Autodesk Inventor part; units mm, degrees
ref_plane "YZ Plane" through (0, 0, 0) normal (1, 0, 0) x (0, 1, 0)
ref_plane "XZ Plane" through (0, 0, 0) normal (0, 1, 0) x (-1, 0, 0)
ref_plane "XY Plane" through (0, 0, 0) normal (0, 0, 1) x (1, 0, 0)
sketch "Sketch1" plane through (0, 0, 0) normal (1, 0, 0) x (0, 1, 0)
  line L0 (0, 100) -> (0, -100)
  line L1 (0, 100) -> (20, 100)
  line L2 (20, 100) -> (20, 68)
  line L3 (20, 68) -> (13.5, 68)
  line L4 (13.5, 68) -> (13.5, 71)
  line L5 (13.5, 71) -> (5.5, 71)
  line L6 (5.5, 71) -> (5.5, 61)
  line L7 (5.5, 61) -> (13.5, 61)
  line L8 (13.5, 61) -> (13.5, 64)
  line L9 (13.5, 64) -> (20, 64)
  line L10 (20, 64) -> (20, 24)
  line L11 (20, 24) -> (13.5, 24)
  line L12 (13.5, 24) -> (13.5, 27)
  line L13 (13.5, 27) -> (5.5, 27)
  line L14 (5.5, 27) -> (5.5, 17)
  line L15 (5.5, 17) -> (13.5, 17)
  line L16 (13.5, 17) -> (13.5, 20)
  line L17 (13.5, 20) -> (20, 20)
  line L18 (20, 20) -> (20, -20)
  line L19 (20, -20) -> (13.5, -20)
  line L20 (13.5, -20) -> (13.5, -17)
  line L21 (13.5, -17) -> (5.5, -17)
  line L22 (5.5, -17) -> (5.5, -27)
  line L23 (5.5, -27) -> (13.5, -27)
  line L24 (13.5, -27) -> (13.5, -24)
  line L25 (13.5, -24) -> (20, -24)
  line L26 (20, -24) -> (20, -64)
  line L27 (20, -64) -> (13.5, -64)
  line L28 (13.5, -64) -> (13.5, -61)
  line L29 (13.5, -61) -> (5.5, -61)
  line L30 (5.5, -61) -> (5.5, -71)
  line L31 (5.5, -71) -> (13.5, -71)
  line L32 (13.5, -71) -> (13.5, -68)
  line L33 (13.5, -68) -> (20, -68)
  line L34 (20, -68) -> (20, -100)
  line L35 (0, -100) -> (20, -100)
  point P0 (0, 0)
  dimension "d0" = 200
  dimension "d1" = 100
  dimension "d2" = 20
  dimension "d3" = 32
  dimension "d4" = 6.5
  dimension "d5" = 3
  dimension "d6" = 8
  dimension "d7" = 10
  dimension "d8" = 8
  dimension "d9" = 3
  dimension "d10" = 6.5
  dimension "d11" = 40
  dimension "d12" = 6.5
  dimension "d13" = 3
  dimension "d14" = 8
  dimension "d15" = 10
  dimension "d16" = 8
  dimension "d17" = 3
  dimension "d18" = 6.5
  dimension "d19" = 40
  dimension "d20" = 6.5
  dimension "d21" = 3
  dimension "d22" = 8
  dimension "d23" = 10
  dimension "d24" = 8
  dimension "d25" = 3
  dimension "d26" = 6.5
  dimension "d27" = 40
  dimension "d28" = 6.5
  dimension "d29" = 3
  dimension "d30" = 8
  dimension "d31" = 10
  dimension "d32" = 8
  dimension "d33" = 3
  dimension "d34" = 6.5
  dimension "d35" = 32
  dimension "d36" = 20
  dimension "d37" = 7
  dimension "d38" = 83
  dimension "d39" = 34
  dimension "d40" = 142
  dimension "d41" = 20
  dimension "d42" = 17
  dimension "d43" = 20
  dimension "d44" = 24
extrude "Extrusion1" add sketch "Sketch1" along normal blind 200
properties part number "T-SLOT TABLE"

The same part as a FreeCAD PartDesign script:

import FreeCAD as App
import Part
import Sketcher

V = App.Vector
Q = App.Units.Quantity

doc = App.newDocument("Part")
body = doc.addObject("PartDesign::Body", "Body")

# Sketch on YZ plane
sketch1 = body.newObject("Sketcher::SketchObject", "Sketch")
sketch1.AttachmentSupport = (doc.getObject("YZ_Plane"), [""])
sketch1.MapMode = "FlatFace"
sketch1.addGeometry(Part.LineSegment(V(20, 100, 0), V(0, 100, 0)), False)
sketch1.addGeometry(Part.LineSegment(V(0, 100, 0), V(0, -100, 0)), False)
sketch1.addGeometry(Part.LineSegment(V(0, -100, 0), V(20, -100, 0)), False)
sketch1.addGeometry(Part.LineSegment(V(20, -100, 0), V(20, -68, 0)), False)
sketch1.addGeometry(Part.LineSegment(V(20, -68, 0), V(13.5, -68, 0)), False)
sketch1.addGeometry(Part.LineSegment(V(13.5, -68, 0), V(13.5, -71, 0)), False)
sketch1.addGeometry(Part.LineSegment(V(13.5, -71, 0), V(5.5, -71, 0)), False)
sketch1.addGeometry(Part.LineSegment(V(5.5, -71, 0), V(5.5, -61, 0)), False)
sketch1.addGeometry(Part.LineSegment(V(5.5, -61, 0), V(13.5, -61, 0)), False)
sketch1.addGeometry(Part.LineSegment(V(13.5, -61, 0), V(13.5, -64, 0)), False)
sketch1.addGeometry(Part.LineSegment(V(13.5, -64, 0), V(20, -64, 0)), False)
sketch1.addGeometry(Part.LineSegment(V(20, -64, 0), V(20, -24, 0)), False)
sketch1.addGeometry(Part.LineSegment(V(20, -24, 0), V(13.5, -24, 0)), False)
sketch1.addGeometry(Part.LineSegment(V(13.5, -24, 0), V(13.5, -27, 0)), False)
sketch1.addGeometry(Part.LineSegment(V(13.5, -27, 0), V(5.5, -27, 0)), False)
sketch1.addGeometry(Part.LineSegment(V(5.5, -27, 0), V(5.5, -17, 0)), False)
sketch1.addGeometry(Part.LineSegment(V(5.5, -17, 0), V(13.5, -17, 0)), False)
sketch1.addGeometry(Part.LineSegment(V(13.5, -17, 0), V(13.5, -20, 0)), False)
sketch1.addGeometry(Part.LineSegment(V(13.5, -20, 0), V(20, -20, 0)), False)
sketch1.addGeometry(Part.LineSegment(V(20, -20, 0), V(20, 20, 0)), False)
sketch1.addGeometry(Part.LineSegment(V(20, 20, 0), V(13.5, 20, 0)), False)
sketch1.addGeometry(Part.LineSegment(V(13.5, 20, 0), V(13.5, 17, 0)), False)
sketch1.addGeometry(Part.LineSegment(V(13.5, 17, 0), V(5.5, 17, 0)), False)
sketch1.addGeometry(Part.LineSegment(V(5.5, 17, 0), V(5.5, 27, 0)), False)
sketch1.addGeometry(Part.LineSegment(V(5.5, 27, 0), V(13.5, 27, 0)), False)
sketch1.addGeometry(Part.LineSegment(V(13.5, 27, 0), V(13.5, 24, 0)), False)
sketch1.addGeometry(Part.LineSegment(V(13.5, 24, 0), V(20, 24, 0)), False)
sketch1.addGeometry(Part.LineSegment(V(20, 24, 0), V(20, 64, 0)), False)
sketch1.addGeometry(Part.LineSegment(V(20, 64, 0), V(13.5, 64, 0)), False)
sketch1.addGeometry(Part.LineSegment(V(13.5, 64, 0), V(13.5, 61, 0)), False)
sketch1.addGeometry(Part.LineSegment(V(13.5, 61, 0), V(5.5, 61, 0)), False)
sketch1.addGeometry(Part.LineSegment(V(5.5, 61, 0), V(5.5, 71, 0)), False)
sketch1.addGeometry(Part.LineSegment(V(5.5, 71, 0), V(13.5, 71, 0)), False)
sketch1.addGeometry(Part.LineSegment(V(13.5, 71, 0), V(13.5, 68, 0)), False)
sketch1.addGeometry(Part.LineSegment(V(13.5, 68, 0), V(20, 68, 0)), False)
sketch1.addGeometry(Part.LineSegment(V(20, 68, 0), V(20, 100, 0)), False)
sketch1.addConstraint(Sketcher.Constraint("Coincident", 0, 2, 1, 1))
sketch1.addConstraint(Sketcher.Constraint("Coincident", 1, 2, 2, 1))
sketch1.addConstraint(Sketcher.Constraint("Coincident", 2, 2, 3, 1))
sketch1.addConstraint(Sketcher.Constraint("Coincident", 3, 2, 4, 1))
sketch1.addConstraint(Sketcher.Constraint("Coincident", 4, 2, 5, 1))
sketch1.addConstraint(Sketcher.Constraint("Coincident", 5, 2, 6, 1))
sketch1.addConstraint(Sketcher.Constraint("Coincident", 6, 2, 7, 1))
sketch1.addConstraint(Sketcher.Constraint("Coincident", 7, 2, 8, 1))
sketch1.addConstraint(Sketcher.Constraint("Coincident", 8, 2, 9, 1))
sketch1.addConstraint(Sketcher.Constraint("Coincident", 9, 2, 10, 1))
sketch1.addConstraint(Sketcher.Constraint("Coincident", 10, 2, 11, 1))
sketch1.addConstraint(Sketcher.Constraint("Coincident", 11, 2, 12, 1))
sketch1.addConstraint(Sketcher.Constraint("Coincident", 12, 2, 13, 1))
sketch1.addConstraint(Sketcher.Constraint("Coincident", 13, 2, 14, 1))
sketch1.addConstraint(Sketcher.Constraint("Coincident", 14, 2, 15, 1))
sketch1.addConstraint(Sketcher.Constraint("Coincident", 15, 2, 16, 1))
sketch1.addConstraint(Sketcher.Constraint("Coincident", 16, 2, 17, 1))
sketch1.addConstraint(Sketcher.Constraint("Coincident", 17, 2, 18, 1))
sketch1.addConstraint(Sketcher.Constraint("Coincident", 18, 2, 19, 1))
sketch1.addConstraint(Sketcher.Constraint("Coincident", 19, 2, 20, 1))
sketch1.addConstraint(Sketcher.Constraint("Coincident", 20, 2, 21, 1))
sketch1.addConstraint(Sketcher.Constraint("Coincident", 21, 2, 22, 1))
sketch1.addConstraint(Sketcher.Constraint("Coincident", 22, 2, 23, 1))
sketch1.addConstraint(Sketcher.Constraint("Coincident", 23, 2, 24, 1))
sketch1.addConstraint(Sketcher.Constraint("Coincident", 24, 2, 25, 1))
sketch1.addConstraint(Sketcher.Constraint("Coincident", 25, 2, 26, 1))
sketch1.addConstraint(Sketcher.Constraint("Coincident", 26, 2, 27, 1))
sketch1.addConstraint(Sketcher.Constraint("Coincident", 27, 2, 28, 1))
sketch1.addConstraint(Sketcher.Constraint("Coincident", 28, 2, 29, 1))
sketch1.addConstraint(Sketcher.Constraint("Coincident", 29, 2, 30, 1))
sketch1.addConstraint(Sketcher.Constraint("Coincident", 30, 2, 31, 1))
sketch1.addConstraint(Sketcher.Constraint("Coincident", 31, 2, 32, 1))
sketch1.addConstraint(Sketcher.Constraint("Coincident", 32, 2, 33, 1))
sketch1.addConstraint(Sketcher.Constraint("Coincident", 33, 2, 34, 1))
sketch1.addConstraint(Sketcher.Constraint("Coincident", 34, 2, 35, 1))
sketch1.addConstraint(Sketcher.Constraint("Coincident", 35, 2, 0, 1))
sketch1.addConstraint(Sketcher.Constraint("Horizontal", 0))
sketch1.addConstraint(Sketcher.Constraint("Vertical", 1))
sketch1.addConstraint(Sketcher.Constraint("Horizontal", 2))
sketch1.addConstraint(Sketcher.Constraint("Vertical", 3))
sketch1.addConstraint(Sketcher.Constraint("Horizontal", 4))
sketch1.addConstraint(Sketcher.Constraint("Vertical", 5))
sketch1.addConstraint(Sketcher.Constraint("Horizontal", 6))
sketch1.addConstraint(Sketcher.Constraint("Vertical", 7))
sketch1.addConstraint(Sketcher.Constraint("Horizontal", 8))
sketch1.addConstraint(Sketcher.Constraint("Vertical", 9))
sketch1.addConstraint(Sketcher.Constraint("Horizontal", 10))
sketch1.addConstraint(Sketcher.Constraint("Vertical", 11))
sketch1.addConstraint(Sketcher.Constraint("Horizontal", 12))
sketch1.addConstraint(Sketcher.Constraint("Vertical", 13))
sketch1.addConstraint(Sketcher.Constraint("Horizontal", 14))
sketch1.addConstraint(Sketcher.Constraint("Vertical", 15))
sketch1.addConstraint(Sketcher.Constraint("Horizontal", 16))
sketch1.addConstraint(Sketcher.Constraint("Vertical", 17))
sketch1.addConstraint(Sketcher.Constraint("Horizontal", 18))
sketch1.addConstraint(Sketcher.Constraint("Vertical", 19))
sketch1.addConstraint(Sketcher.Constraint("Horizontal", 20))
sketch1.addConstraint(Sketcher.Constraint("Vertical", 21))
sketch1.addConstraint(Sketcher.Constraint("Horizontal", 22))
sketch1.addConstraint(Sketcher.Constraint("Vertical", 23))
sketch1.addConstraint(Sketcher.Constraint("Horizontal", 24))
sketch1.addConstraint(Sketcher.Constraint("Vertical", 25))
sketch1.addConstraint(Sketcher.Constraint("Horizontal", 26))
sketch1.addConstraint(Sketcher.Constraint("Vertical", 27))
sketch1.addConstraint(Sketcher.Constraint("Horizontal", 28))
sketch1.addConstraint(Sketcher.Constraint("Vertical", 29))
sketch1.addConstraint(Sketcher.Constraint("Horizontal", 30))
sketch1.addConstraint(Sketcher.Constraint("Vertical", 31))
sketch1.addConstraint(Sketcher.Constraint("Horizontal", 32))
sketch1.addConstraint(Sketcher.Constraint("Vertical", 33))
sketch1.addConstraint(Sketcher.Constraint("Horizontal", 34))
sketch1.addConstraint(Sketcher.Constraint("Vertical", 35))
sketch1.addConstraint(Sketcher.Constraint("Symmetric", 0, 2, 1, 2, -1, 1))
sketch1.addConstraint(Sketcher.Constraint("Symmetric", 17, 2, 20, 2, -1))
sketch1.addConstraint(Sketcher.Constraint("Symmetric", 15, 2, 22, 2, -1))
sketch1.addConstraint(Sketcher.Constraint("Symmetric", 13, 2, 24, 2, -1))
sketch1.addConstraint(Sketcher.Constraint("Symmetric", 11, 2, 26, 2, -1))
sketch1.addConstraint(Sketcher.Constraint("Symmetric", 9, 2, 28, 2, -1))
sketch1.addConstraint(Sketcher.Constraint("Symmetric", 7, 2, 30, 2, -1))
sketch1.addConstraint(Sketcher.Constraint("Symmetric", 5, 2, 32, 2, -1))
sketch1.addConstraint(Sketcher.Constraint("Symmetric", 3, 2, 34, 2, -1))
sketch1.addConstraint(Sketcher.Constraint("Vertical", 5, 2, 8, 2))
sketch1.addConstraint(Sketcher.Constraint("Vertical", 3, 2, 10, 2))
sketch1.addConstraint(Sketcher.Constraint("Vertical", 9, 2, 12, 2))
sketch1.addConstraint(Sketcher.Constraint("Vertical", 7, 2, 14, 2))
sketch1.addConstraint(Sketcher.Constraint("Vertical", 13, 2, 16, 2))
sketch1.addConstraint(Sketcher.Constraint("Vertical", 11, 2, 18, 2))
sketch1.addConstraint(Sketcher.Constraint("Equal", 5, 9))
sketch1.addConstraint(Sketcher.Constraint("Equal", 9, 13))
sketch1.addConstraint(Sketcher.Constraint("Equal", 7, 15))
sketch1.addConstraint(Sketcher.Constraint("Equal", 13, 17))
sketch1.addConstraint(Sketcher.Constraint("Equal", 11, 19))
sketch1.addConstraint(Sketcher.Constraint("DistanceX", 0, 2, 0, 1, Q("20 mm")))
sketch1.addConstraint(Sketcher.Constraint("DistanceX", 6, 2, 6, 1, Q("8 mm")))
sketch1.addConstraint(Sketcher.Constraint("DistanceY", 1, 2, 1, 1, Q("200 mm")))
sketch1.addConstraint(Sketcher.Constraint("DistanceY", 3, 1, 3, 2, Q("32 mm")))
sketch1.addConstraint(Sketcher.Constraint("DistanceY", 5, 2, 5, 1, Q("3 mm")))
sketch1.addConstraint(Sketcher.Constraint("DistanceY", 7, 1, 7, 2, Q("10 mm")))
sketch1.addConstraint(Sketcher.Constraint("DistanceX", 4, 2, 4, 1, Q("6.5 mm")))
pad1 = body.newObject("PartDesign::Pad", "Pad")
pad1.Profile = sketch1
pad1.Length = 200

doc.recompute()
